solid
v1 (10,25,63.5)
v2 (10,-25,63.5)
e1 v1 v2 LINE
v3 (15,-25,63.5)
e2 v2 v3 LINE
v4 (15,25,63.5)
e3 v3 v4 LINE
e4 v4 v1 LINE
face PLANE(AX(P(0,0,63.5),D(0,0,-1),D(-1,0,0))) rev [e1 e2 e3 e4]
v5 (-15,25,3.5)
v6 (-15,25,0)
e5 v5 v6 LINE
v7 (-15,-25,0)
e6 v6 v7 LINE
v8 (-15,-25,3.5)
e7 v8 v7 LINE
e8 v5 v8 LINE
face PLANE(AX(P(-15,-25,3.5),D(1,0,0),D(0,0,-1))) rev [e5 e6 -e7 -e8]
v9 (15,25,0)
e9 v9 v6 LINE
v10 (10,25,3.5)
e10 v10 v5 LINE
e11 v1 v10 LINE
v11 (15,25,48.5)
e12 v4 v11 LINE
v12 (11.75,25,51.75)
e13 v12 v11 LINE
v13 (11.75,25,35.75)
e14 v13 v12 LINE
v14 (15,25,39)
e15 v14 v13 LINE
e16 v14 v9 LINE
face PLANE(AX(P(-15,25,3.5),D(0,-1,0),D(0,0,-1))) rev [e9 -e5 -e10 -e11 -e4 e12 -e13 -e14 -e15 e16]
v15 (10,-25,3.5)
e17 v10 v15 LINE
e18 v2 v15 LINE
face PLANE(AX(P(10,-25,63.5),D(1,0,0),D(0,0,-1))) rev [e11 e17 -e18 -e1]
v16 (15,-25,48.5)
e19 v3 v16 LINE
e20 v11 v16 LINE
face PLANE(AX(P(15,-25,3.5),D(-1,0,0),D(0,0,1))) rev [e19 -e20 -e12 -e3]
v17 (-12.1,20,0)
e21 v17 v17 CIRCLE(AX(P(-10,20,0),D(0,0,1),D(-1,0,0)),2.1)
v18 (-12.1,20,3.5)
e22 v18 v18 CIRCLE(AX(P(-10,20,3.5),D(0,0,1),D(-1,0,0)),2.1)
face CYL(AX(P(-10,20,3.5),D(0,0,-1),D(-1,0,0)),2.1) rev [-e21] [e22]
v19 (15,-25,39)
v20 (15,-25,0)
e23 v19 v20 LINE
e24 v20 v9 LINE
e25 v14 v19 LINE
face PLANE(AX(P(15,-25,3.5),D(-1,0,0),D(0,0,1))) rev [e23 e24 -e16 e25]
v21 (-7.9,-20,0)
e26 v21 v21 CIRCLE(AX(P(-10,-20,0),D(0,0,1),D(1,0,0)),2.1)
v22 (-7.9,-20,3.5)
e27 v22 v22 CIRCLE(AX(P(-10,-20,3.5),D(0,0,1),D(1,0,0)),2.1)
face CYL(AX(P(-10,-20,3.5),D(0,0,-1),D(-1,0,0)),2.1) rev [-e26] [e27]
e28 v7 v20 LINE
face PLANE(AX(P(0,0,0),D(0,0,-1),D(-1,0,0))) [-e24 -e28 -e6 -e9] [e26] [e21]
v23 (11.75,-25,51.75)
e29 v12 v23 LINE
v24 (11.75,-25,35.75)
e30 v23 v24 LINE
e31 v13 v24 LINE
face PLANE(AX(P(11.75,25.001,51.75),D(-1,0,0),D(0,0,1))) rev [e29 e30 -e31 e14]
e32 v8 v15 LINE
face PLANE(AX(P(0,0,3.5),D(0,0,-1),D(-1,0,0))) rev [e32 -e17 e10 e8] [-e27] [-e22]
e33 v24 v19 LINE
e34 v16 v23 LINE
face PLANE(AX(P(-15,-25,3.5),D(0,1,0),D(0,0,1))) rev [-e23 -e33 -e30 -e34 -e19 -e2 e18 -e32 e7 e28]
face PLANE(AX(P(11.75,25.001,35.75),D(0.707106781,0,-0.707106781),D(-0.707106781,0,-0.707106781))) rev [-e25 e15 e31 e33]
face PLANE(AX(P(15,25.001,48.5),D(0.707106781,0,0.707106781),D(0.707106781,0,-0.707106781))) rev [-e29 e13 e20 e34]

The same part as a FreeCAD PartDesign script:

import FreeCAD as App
import Part
import Sketcher

V = App.Vector
Q = App.Units.Quantity

doc = App.newDocument("Part")
body = doc.addObject("PartDesign::Body", "Body")

sketch1 = body.newObject("Sketcher::SketchObject", "Sketch")
sketch1.AttachmentSupport = (doc.getObject("XY_Plane"), [""])
sketch1.MapMode = "FlatFace"
sketch1.addGeometry([
    Part.LineSegment(V(-15, 25, 0), V(-15, -25, 0)),
    Part.LineSegment(V(-15, -25, 0), V(15, -25, 0)),
    Part.LineSegment(V(15, -25, 0), V(15, 25, 0)),
    Part.LineSegment(V(15, 25, 0), V(-15, 25, 0)),
    Part.Circle(V(-10, -20, 0), V(0, 0, 1), 2.1),
    Part.Circle(V(-10, 20, 0), V(0, 0, 1), 2.1),
], False)
sketch1.addConstraint([
    Sketcher.Constraint("Coincident", 0, 2, 1, 1),
    Sketcher.Constraint("Coincident", 1, 2, 2, 1),
    Sketcher.Constraint("Coincident", 2, 2, 3, 1),
    Sketcher.Constraint("Coincident", 3, 2, 0, 1),
    Sketcher.Constraint("Vertical", 0),
    Sketcher.Constraint("Horizontal", 1),
    Sketcher.Constraint("Vertical", 2),
    Sketcher.Constraint("Horizontal", 3),
    Sketcher.Constraint("Equal", 4, 5),
    Sketcher.Constraint("Symmetric", 0, 2, 2, 2, -1, 1),
    Sketcher.Constraint("Symmetric", 4, 3, 5, 3, -1),
    Sketcher.Constraint("Diameter", 4, Q("4.2 mm")),
    Sketcher.Constraint("DistanceX", 1, 1, 1, 2, Q("30 mm")),
    Sketcher.Constraint("DistanceY", 0, 2, 0, 1, Q("50 mm")),
    Sketcher.Constraint("DistanceX", 4, 3, -1, 1, Q("10 mm")),
    Sketcher.Constraint("DistanceY", 4, 3, -1, 1, Q("20 mm")),
])
pad1 = body.newObject("PartDesign::Pad", "Pad")
pad1.Profile = sketch1
pad1.Length = 3.5

sketch2 = body.newObject("Sketcher::SketchObject", "Sketch001")
sketch2.AttachmentSupport = (doc.getObject("XY_Plane"), [""])
sketch2.MapMode = "FlatFace"
sketch2.AttachmentOffset = App.Placement(V(0, 0, 3.5), App.Rotation())
sketch2.addGeometry([
    Part.LineSegment(V(10, 25, 0), V(10, -25, 0)),
    Part.LineSegment(V(10, -25, 0), V(15, -25, 0)),
    Part.LineSegment(V(15, -25, 0), V(15, 25, 0)),
    Part.LineSegment(V(15, 25, 0), V(10, 25, 0)),
], False)
sketch2.addConstraint([
    Sketcher.Constraint("Coincident", 0, 2, 1, 1),
    Sketcher.Constraint("Coincident", 1, 2, 2, 1),
    Sketcher.Constraint("Coincident", 2, 2, 3, 1),
    Sketcher.Constraint("Coincident", 3, 2, 0, 1),
    Sketcher.Constraint("Vertical", 0),
    Sketcher.Constraint("Horizontal", 1),
    Sketcher.Constraint("Vertical", 2),
    Sketcher.Constraint("Horizontal", 3),
    Sketcher.Constraint("DistanceX", 1, 1, 1, 2, Q("5 mm")),
    Sketcher.Constraint("DistanceY", 0, 2, 0, 1, Q("50 mm")),
    Sketcher.Constraint("DistanceX", -1, 1, 0, 2, Q("10 mm")),
    Sketcher.Constraint("DistanceY", 0, 2, -1, 1, Q("25 mm")),
])
pad2 = body.newObject("PartDesign::Pad", "Pad001")
pad2.Profile = sketch2
pad2.Length = 60

sketch3 = body.newObject("Sketcher::SketchObject", "Sketch002")
sketch3.AttachmentSupport = (doc.getObject("XZ_Plane"), [""])
sketch3.MapMode = "FlatFace"
sketch3.AttachmentOffset = App.Placement(V(0, 0, 25), App.Rotation())
sketch3.addGeometry([
    Part.LineSegment(V(15, 48.5, 0), V(11.8, 51.8, 0)),
    Part.LineSegment(V(11.8, 51.8, 0), V(11.8, 35.8, 0)),
    Part.LineSegment(V(11.8, 35.8, 0), V(15, 39, 0)),
    Part.LineSegment(V(15, 39, 0), V(15, 48.5, 0)),
], False)
sketch3.addConstraint([
    Sketcher.Constraint("Coincident", 0, 2, 1, 1),
    Sketcher.Constraint("Coincident", 1, 2, 2, 1),
    Sketcher.Constraint("Coincident", 2, 2, 3, 1),
    Sketcher.Constraint("Coincident", 3, 2, 0, 1),
    Sketcher.Constraint("Vertical", 1),
    Sketcher.Constraint("Vertical", 3),
    Sketcher.Constraint("Perpendicular", 0, 2),
    Sketcher.Constraint("Equal", 0, 2),
    Sketcher.Constraint("DistanceY", 1, 2, 1, 1, Q("16 mm")),
    Sketcher.Constraint("DistanceY", 3, 1, 3, 2, Q("9.5 mm")),
    Sketcher.Constraint("DistanceX", -1, 1, 2, 2, Q("15 mm")),
    Sketcher.Constraint("DistanceY", -1, 1, 2, 2, Q("39 mm")),
])
pocket1 = body.newObject("PartDesign::Pocket", "Pocket")
pocket1.Profile = sketch3
pocket1.Type = "UpToFirst"

doc.recompute()
